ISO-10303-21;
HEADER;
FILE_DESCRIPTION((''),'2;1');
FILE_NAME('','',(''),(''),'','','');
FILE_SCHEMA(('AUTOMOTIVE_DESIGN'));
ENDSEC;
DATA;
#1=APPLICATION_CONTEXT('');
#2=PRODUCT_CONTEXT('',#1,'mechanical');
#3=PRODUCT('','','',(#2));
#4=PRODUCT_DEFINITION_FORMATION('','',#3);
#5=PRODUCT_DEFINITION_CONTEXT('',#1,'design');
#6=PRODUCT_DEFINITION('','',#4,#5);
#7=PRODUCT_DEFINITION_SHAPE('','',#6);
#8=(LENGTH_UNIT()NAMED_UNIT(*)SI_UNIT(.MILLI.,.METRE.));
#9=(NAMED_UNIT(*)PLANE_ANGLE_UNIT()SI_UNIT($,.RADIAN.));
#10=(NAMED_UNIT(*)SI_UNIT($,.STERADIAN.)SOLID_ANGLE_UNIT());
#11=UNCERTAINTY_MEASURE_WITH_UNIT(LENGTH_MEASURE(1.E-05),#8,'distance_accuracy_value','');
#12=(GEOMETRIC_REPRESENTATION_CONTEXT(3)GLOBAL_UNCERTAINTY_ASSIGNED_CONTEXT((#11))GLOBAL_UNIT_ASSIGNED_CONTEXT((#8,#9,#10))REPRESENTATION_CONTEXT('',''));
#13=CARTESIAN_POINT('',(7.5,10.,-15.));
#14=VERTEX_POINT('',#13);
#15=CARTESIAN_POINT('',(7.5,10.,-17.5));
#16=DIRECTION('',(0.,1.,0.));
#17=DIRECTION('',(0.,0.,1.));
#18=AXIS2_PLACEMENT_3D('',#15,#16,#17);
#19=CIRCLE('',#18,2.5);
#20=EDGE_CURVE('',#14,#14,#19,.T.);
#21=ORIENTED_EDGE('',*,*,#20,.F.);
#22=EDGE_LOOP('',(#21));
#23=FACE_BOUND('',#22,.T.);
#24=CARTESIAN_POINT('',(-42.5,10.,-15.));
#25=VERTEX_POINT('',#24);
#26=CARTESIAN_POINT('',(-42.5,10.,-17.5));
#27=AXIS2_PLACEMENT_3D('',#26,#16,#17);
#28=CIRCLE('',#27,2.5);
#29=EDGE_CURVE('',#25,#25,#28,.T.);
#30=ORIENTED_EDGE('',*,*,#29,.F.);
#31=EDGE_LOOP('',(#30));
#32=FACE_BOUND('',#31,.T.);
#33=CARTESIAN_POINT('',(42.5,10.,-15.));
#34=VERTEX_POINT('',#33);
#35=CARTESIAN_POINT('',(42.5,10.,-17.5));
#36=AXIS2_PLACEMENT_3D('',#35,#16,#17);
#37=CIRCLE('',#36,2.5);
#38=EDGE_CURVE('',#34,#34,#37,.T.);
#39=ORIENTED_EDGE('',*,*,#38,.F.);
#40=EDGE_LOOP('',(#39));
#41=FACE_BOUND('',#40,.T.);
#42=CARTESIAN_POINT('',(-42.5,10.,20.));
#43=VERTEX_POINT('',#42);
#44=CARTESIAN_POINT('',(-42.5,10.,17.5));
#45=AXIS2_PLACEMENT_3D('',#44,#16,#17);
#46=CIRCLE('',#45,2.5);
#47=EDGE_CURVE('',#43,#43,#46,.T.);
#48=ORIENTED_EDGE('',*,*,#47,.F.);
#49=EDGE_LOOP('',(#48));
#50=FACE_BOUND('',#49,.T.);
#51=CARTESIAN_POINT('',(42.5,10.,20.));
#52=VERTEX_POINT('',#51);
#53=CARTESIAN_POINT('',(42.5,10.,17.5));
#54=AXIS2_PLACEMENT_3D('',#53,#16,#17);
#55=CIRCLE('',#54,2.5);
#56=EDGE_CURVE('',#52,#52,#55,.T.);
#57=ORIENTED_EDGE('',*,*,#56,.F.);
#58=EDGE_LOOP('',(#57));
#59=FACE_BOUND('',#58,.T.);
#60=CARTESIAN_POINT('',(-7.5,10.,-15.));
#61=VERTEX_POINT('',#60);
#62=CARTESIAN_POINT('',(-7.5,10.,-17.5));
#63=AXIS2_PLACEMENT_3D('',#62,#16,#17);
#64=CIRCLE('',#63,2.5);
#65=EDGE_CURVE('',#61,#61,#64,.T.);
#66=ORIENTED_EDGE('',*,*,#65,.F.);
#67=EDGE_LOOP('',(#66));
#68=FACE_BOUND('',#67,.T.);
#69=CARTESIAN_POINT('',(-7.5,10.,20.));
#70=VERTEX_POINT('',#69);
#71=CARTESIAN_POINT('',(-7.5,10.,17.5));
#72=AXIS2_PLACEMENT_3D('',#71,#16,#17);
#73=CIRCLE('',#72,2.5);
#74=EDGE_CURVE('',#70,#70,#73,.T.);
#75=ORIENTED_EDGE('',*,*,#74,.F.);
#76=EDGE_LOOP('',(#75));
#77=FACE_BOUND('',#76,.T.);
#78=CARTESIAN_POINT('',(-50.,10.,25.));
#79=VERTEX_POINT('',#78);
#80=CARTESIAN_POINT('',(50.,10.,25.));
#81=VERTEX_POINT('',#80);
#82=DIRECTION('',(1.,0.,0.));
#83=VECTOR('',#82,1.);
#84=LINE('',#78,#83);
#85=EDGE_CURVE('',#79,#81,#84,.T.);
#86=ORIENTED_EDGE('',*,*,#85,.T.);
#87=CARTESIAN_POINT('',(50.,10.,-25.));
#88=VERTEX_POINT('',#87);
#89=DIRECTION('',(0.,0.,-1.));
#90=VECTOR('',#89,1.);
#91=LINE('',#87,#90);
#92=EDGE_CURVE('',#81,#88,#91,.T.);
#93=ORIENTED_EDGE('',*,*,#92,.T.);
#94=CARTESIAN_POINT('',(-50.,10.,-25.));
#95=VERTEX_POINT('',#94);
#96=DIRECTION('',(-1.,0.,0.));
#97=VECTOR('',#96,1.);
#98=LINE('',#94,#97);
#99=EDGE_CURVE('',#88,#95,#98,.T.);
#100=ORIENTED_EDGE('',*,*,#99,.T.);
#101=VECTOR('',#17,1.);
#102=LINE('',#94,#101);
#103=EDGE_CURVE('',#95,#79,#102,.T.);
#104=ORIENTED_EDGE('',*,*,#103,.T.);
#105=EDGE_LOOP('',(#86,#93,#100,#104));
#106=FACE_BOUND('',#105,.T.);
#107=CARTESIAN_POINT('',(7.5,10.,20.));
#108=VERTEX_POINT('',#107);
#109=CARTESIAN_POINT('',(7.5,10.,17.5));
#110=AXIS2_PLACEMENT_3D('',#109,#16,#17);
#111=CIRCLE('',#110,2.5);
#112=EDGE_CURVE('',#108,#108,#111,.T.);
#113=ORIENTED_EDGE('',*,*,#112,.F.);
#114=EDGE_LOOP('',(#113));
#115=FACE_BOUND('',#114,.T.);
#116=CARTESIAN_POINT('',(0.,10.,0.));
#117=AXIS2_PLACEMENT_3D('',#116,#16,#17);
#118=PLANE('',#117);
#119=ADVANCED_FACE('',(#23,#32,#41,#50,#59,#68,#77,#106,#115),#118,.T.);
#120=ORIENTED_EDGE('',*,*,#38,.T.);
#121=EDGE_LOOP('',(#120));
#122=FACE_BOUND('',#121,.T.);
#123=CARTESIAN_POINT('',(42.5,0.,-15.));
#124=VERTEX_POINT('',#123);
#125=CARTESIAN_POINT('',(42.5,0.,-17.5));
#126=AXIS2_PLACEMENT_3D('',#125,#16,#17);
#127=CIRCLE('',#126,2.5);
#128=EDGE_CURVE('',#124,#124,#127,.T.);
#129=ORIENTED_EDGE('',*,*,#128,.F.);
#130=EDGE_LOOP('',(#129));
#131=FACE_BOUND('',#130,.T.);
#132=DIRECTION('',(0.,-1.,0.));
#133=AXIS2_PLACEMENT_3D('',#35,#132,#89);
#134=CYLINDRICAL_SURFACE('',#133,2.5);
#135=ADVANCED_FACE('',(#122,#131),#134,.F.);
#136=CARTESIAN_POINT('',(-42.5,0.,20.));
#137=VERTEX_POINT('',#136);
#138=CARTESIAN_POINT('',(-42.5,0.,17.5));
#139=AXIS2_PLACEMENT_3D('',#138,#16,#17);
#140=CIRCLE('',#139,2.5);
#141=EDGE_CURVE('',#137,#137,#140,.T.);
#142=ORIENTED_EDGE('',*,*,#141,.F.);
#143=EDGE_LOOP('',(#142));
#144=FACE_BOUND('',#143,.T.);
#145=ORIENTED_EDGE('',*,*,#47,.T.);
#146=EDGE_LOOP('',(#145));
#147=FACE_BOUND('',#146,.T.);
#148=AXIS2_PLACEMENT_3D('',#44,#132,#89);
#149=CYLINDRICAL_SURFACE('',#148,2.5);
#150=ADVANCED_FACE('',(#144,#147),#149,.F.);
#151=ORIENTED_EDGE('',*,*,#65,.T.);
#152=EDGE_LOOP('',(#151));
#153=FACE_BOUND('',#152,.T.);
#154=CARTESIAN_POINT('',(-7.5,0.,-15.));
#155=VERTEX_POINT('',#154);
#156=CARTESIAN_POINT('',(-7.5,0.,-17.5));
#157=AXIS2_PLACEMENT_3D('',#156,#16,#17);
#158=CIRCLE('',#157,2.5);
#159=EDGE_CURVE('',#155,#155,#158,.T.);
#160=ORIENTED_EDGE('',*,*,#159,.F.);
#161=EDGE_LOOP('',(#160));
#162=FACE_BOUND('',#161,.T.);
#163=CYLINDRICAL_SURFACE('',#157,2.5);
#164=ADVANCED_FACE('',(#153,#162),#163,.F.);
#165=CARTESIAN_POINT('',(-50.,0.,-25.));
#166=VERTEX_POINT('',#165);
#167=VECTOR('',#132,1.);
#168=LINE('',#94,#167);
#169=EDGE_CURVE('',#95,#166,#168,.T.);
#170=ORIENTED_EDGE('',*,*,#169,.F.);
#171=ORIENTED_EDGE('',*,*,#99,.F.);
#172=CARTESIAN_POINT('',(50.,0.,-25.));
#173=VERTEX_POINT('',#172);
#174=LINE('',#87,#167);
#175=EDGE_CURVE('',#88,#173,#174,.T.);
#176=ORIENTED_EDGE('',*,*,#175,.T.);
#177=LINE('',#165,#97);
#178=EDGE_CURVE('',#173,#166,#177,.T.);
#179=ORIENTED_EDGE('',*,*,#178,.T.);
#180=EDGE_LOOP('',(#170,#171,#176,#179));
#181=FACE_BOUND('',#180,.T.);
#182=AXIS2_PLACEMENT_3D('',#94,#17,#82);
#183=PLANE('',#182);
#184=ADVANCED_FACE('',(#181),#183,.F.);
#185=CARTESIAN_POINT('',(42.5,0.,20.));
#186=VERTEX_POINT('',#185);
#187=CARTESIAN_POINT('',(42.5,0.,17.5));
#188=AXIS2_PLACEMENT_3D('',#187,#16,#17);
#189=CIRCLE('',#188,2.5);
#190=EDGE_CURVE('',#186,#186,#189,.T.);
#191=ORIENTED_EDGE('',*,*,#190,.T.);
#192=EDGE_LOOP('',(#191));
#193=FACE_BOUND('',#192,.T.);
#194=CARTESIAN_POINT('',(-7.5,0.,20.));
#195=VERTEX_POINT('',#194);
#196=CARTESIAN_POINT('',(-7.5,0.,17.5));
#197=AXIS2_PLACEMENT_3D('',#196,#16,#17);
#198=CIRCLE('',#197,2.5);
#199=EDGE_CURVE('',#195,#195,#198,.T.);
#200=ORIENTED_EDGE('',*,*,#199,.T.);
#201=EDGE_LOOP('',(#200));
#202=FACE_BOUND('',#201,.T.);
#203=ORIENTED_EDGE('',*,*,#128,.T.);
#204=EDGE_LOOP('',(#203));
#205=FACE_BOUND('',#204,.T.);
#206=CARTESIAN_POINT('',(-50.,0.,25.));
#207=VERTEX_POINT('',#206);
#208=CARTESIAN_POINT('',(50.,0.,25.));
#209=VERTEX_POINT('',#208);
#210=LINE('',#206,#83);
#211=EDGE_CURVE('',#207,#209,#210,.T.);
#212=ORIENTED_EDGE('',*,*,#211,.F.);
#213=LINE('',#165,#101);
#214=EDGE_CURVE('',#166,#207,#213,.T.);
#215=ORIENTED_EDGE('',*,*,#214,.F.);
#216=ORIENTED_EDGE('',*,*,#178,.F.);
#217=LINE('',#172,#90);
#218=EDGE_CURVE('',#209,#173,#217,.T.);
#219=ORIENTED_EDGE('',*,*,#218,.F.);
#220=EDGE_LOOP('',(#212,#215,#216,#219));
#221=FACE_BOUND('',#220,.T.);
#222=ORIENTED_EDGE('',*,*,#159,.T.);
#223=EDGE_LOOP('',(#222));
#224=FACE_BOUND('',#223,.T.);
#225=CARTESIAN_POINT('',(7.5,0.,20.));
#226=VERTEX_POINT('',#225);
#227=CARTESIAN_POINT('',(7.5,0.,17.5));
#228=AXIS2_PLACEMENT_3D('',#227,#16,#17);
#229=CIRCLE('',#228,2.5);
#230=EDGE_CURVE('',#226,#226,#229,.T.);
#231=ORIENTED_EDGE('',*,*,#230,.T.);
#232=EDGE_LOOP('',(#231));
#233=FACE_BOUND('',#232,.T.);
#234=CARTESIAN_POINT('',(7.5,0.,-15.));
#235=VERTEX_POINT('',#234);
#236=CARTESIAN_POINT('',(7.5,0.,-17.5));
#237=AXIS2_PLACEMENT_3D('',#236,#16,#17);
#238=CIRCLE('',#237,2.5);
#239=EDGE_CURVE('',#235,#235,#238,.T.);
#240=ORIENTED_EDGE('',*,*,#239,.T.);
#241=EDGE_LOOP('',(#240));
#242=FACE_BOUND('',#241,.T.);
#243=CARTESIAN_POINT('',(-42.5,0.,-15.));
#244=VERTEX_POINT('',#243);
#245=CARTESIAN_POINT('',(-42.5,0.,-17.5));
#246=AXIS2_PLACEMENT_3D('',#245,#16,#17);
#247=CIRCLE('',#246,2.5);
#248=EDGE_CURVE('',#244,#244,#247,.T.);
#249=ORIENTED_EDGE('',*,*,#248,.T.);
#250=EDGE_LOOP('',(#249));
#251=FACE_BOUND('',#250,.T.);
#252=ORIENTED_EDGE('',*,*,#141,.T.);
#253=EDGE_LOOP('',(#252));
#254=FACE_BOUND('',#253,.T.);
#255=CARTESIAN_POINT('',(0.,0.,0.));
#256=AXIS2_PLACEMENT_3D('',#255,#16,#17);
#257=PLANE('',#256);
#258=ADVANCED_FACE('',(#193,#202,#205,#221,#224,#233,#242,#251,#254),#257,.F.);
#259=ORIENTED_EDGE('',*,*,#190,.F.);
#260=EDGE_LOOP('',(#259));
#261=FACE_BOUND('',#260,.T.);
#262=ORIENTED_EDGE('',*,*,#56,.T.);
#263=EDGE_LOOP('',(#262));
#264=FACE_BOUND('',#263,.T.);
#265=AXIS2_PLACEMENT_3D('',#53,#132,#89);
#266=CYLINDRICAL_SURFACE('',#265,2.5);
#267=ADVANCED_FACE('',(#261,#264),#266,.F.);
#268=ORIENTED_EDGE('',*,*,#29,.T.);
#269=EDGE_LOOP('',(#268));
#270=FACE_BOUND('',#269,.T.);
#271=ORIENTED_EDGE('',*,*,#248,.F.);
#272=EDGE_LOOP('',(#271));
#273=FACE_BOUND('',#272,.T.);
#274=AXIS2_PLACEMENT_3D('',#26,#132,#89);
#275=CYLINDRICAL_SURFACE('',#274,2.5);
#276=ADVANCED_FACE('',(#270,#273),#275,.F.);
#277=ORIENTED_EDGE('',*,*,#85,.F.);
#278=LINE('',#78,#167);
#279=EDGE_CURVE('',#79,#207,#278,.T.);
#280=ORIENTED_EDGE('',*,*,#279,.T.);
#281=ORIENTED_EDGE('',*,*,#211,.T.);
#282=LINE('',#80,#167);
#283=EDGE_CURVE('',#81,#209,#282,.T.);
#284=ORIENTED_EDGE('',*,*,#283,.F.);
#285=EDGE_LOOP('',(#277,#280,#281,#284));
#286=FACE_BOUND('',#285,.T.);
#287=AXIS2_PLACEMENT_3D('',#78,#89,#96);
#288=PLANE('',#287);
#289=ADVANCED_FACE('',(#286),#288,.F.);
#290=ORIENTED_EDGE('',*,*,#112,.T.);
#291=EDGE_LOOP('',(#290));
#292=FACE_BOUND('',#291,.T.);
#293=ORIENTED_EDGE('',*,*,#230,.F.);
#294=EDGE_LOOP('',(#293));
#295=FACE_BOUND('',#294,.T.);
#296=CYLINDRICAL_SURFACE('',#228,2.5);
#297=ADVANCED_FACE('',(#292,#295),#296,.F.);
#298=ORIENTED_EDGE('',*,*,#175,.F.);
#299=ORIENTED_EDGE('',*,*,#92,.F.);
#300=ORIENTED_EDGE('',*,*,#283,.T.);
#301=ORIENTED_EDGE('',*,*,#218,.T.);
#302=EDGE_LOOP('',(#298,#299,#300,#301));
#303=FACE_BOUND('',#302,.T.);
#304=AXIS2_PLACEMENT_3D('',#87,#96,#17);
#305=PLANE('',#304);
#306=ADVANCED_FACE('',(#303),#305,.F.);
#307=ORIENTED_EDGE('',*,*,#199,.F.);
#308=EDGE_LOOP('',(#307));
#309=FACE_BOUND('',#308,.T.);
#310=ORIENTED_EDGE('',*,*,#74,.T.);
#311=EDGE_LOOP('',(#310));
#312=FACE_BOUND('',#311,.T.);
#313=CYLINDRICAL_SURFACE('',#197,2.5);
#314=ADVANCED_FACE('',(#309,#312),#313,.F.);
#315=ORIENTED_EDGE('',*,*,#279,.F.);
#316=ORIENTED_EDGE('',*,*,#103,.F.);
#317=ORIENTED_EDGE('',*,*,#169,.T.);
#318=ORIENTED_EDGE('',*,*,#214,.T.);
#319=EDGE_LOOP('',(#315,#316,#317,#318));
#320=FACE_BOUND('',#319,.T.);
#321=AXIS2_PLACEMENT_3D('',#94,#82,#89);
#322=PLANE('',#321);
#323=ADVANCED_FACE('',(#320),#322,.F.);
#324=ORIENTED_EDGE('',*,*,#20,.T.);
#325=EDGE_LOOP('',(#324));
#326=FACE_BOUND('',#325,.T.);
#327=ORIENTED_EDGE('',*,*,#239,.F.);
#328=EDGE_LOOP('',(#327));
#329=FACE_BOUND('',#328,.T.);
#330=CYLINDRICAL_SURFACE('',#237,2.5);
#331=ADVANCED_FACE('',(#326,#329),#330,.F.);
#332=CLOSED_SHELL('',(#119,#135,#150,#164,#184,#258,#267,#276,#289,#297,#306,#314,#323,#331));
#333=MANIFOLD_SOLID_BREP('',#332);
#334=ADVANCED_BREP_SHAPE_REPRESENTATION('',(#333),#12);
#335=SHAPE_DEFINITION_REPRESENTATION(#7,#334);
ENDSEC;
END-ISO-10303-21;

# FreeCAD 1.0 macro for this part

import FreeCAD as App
import Part
import Sketcher
Q = App.Units.Quantity

doc = App.newDocument("Part")
body = doc.addObject("PartDesign::Body", "Body")

# Sketch on XZ plane
sketch1 = body.newObject("Sketcher::SketchObject", "Sketch")
sketch1.AttachmentSupport = (doc.getObject("XZ_Plane"), [""])
sketch1.MapMode = "FlatFace"
sketch1.addGeometry([
    Part.LineSegment(App.Vector(-50, -25, 0), App.Vector(-50, 25, 0)),  # 0
    Part.LineSegment(App.Vector(-50, 25, 0), App.Vector(50, 25, 0)),  # 1
    Part.LineSegment(App.Vector(50, 25, 0), App.Vector(50, -25, 0)),  # 2
    Part.LineSegment(App.Vector(50, -25, 0), App.Vector(-50, -25, 0)),  # 3
    Part.Circle(App.Vector(-42.5, 17.5, 0), App.Vector(0, 0, 1), 2.5),  # 4
    Part.Circle(App.Vector(42.5, 17.5, 0), App.Vector(0, 0, 1), 2.5),  # 5
    Part.Circle(App.Vector(-42.5, -17.5, 0), App.Vector(0, 0, 1), 2.5),  # 6
    Part.Circle(App.Vector(42.5, -17.5, 0), App.Vector(0, 0, 1), 2.5),  # 7
], False)
sketch1.addConstraint([
    Sketcher.Constraint("Coincident", 0, 2, 1, 1),
    Sketcher.Constraint("Coincident", 1, 2, 2, 1),
    Sketcher.Constraint("Coincident", 2, 2, 3, 1),
    Sketcher.Constraint("Coincident", 3, 2, 0, 1),
    Sketcher.Constraint("Vertical", 0),
    Sketcher.Constraint("Horizontal", 1),
    Sketcher.Constraint("Vertical", 2),
    Sketcher.Constraint("Horizontal", 3),
    Sketcher.Constraint("Equal", 4, 5),
    Sketcher.Constraint("Equal", 5, 6),
    Sketcher.Constraint("Equal", 6, 7),
    Sketcher.Constraint("Symmetric", 5, 3, 6, 3, -1, 1),
    Sketcher.Constraint("Symmetric", 4, 3, 7, 3, -1, 1),
    Sketcher.Constraint("Symmetric", 0, 2, 2, 2, -1, 1),
    Sketcher.Constraint("Symmetric", 4, 3, 5, 3, -2),
    Sketcher.Constraint("Diameter", 4, Q("5 mm")),
    Sketcher.Constraint("DistanceX", 1, 1, 1, 2, Q("100 mm")),
    Sketcher.Constraint("DistanceY", 0, 1, 0, 2, Q("50 mm")),
    Sketcher.Constraint("DistanceX", 4, 3, 5, 3, Q("85 mm")),
    Sketcher.Constraint("DistanceY", 6, 3, 4, 3, Q("35 mm")),
])
pad1 = body.newObject("PartDesign::Pad", "Pad")
pad1.Profile = sketch1
pad1.Length = 10
pad1.Reversed = True

# Sketch on XZ plane
sketch2 = body.newObject("Sketcher::SketchObject", "Sketch001")
sketch2.AttachmentSupport = (doc.getObject("XZ_Plane"), [""])
sketch2.MapMode = "FlatFace"
sketch2.AttachmentOffset = App.Placement(App.Vector(0, 0, -10), App.Rotation())
sketch2.addGeometry([
    Part.Circle(App.Vector(-7.5, -17.5, 0), App.Vector(0, 0, 1), 2.5),
    Part.Circle(App.Vector(7.5, -17.5, 0), App.Vector(0, 0, 1), 2.5),
    Part.Circle(App.Vector(7.5, 17.5, 0), App.Vector(0, 0, 1), 2.5),
    Part.Circle(App.Vector(-7.5, 17.5, 0), App.Vector(0, 0, 1), 2.5),
], False)
sketch2.addConstraint([
    Sketcher.Constraint("Equal", 0, 1),
    Sketcher.Constraint("Equal", 1, 2),
    Sketcher.Constraint("Equal", 2, 3),
    Sketcher.Constraint("Symmetric", 0, 3, 2, 3, -1, 1),
    Sketcher.Constraint("Symmetric", 1, 3, 3, 3, -1, 1),
    Sketcher.Constraint("Symmetric", 0, 3, 1, 3, -2),
    Sketcher.Constraint("Diameter", 0, Q("5 mm")),
    Sketcher.Constraint("DistanceX", 0, 3, 1, 3, Q("15 mm")),
    Sketcher.Constraint("DistanceY", 1, 3, 2, 3, Q("35 mm")),
])
pocket1 = body.newObject("PartDesign::Pocket", "Pocket")
pocket1.Profile = sketch2
pocket1.Length = 10
pocket1.Reversed = True

doc.recompute()
